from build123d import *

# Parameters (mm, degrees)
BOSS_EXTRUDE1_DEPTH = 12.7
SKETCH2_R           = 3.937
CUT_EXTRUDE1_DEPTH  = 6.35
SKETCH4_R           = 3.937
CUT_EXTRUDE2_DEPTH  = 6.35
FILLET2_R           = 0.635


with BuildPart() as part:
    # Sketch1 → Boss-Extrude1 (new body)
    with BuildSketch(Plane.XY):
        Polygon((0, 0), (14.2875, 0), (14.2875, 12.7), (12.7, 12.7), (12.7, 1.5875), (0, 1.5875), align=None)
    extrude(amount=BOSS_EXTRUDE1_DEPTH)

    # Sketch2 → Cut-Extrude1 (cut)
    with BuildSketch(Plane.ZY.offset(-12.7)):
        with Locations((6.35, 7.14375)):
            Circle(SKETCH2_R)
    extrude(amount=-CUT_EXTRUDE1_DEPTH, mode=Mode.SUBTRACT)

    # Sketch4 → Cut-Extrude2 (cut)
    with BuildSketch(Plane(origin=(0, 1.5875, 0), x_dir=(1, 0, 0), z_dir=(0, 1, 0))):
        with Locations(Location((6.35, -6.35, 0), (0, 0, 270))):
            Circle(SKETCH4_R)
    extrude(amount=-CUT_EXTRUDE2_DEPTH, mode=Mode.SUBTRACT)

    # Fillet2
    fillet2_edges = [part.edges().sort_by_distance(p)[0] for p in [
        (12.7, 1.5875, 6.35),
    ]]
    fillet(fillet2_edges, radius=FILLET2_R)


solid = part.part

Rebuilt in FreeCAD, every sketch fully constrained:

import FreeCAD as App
import Part
import Sketcher

V = App.Vector
Q = App.Units.Quantity


def edges_at(feature, points):
    """Names of the edges that pass closest to the given points."""
    edges = feature.Shape.Edges
    near = lambda p: min(range(len(edges)), key=lambda i: edges[i].distToShape(Part.Vertex(*p))[0])
    return sorted({f"Edge{near(p) + 1}" for p in points})

doc = App.newDocument("Part")
body = doc.addObject("PartDesign::Body", "Body")

# Sketch on XY plane
sketch1 = body.newObject("Sketcher::SketchObject", "Sketch")
sketch1.AttachmentSupport = (doc.getObject("XY_Plane"), [""])
sketch1.MapMode = "FlatFace"
sketch1.addGeometry([
    Part.LineSegment(V(0, 0, 0), V(14.3, 0, 0)),  # 0
    Part.LineSegment(V(14.3, 0, 0), V(14.3, 12.7, 0)),  # 1
    Part.LineSegment(V(14.3, 12.7, 0), V(12.7, 12.7, 0)),  # 2
    Part.LineSegment(V(12.7, 12.7, 0), V(12.7, 1.6, 0)),  # 3
    Part.LineSegment(V(12.7, 1.6, 0), V(0, 1.6, 0)),  # 4
    Part.LineSegment(V(0, 1.6, 0), V(0, 0, 0)),  # 5
], False)
sketch1.addConstraint([
    Sketcher.Constraint("Coincident", 0, 2, 1, 1),
    Sketcher.Constraint("Coincident", 1, 2, 2, 1),
    Sketcher.Constraint("Coincident", 2, 2, 3, 1),
    Sketcher.Constraint("Coincident", 3, 2, 4, 1),
    Sketcher.Constraint("Coincident", 4, 2, 5, 1),
    Sketcher.Constraint("Coincident", 5, 2, 0, 1),
    Sketcher.Constraint("Horizontal", 0),
    Sketcher.Constraint("Vertical", 1),
    Sketcher.Constraint("Horizontal", 2),
    Sketcher.Constraint("Vertical", 3),
    Sketcher.Constraint("Horizontal", 4),
    Sketcher.Constraint("Vertical", 5),
    Sketcher.Constraint("Coincident", 5, 2, -1, 1),
    Sketcher.Constraint("Equal", 4, 1),
    Sketcher.Constraint("Equal", 2, 5),
    Sketcher.Constraint("DistanceX", 4, 2, 4, 1, Q("0.5 in")),
    Sketcher.Constraint("DistanceX", 0, 1, 0, 2, Q("0.5625 in")),
])
pad1 = body.newObject("PartDesign::Pad", "Pad")
pad1.Profile = sketch1
pad1.Length = Q("0.5 in")

# Sketch on YZ plane
sketch2 = body.newObject("Sketcher::SketchObject", "Sketch001")
sketch2.AttachmentSupport = (doc.getObject("YZ_Plane"), [""])
sketch2.MapMode = "FlatFace"
sketch2.AttachmentOffset = App.Placement(V(0, 0, 0.5 * 25.4), App.Rotation())
sketch2.addGeometry(Part.Circle(V(7.1, 6.3, 0), V(0, 0, 1), 3.9), False)
sketch2.addConstraint([
    Sketcher.Constraint("Diameter", 0, Q("0.31 in")),
    Sketcher.Constraint("DistanceY", -1, 1, 0, 3, Q("0.25 in")),
    Sketcher.Constraint("DistanceX", -1, 1, 0, 3, Q("0.28125 in")),
])
pocket1 = body.newObject("PartDesign::Pocket", "Pocket")
pocket1.Profile = sketch2
pocket1.Length = Q("0.25 in")
pocket1.Reversed = True

# Sketch on XZ plane
sketch3 = body.newObject("Sketcher::SketchObject", "Sketch002")
sketch3.AttachmentSupport = (doc.getObject("XZ_Plane"), [""])
sketch3.MapMode = "FlatFace"
sketch3.AttachmentOffset = App.Placement(V(0, 0, -0.0625 * 25.4), App.Rotation())
sketch3.addGeometry(Part.Circle(V(6.3, 6.3, 0), V(0, 0, 1), 3.9), False)
sketch3.addConstraint([
    Sketcher.Constraint("Diameter", 0, Q("0.31 in")),
    Sketcher.Constraint("DistanceX", -1, 1, 0, 3, Q("0.25 in")),
    Sketcher.Constraint("DistanceY", -1, 1, 0, 3, Q("0.25 in")),
])
pocket2 = body.newObject("PartDesign::Pocket", "Pocket001")
pocket2.Profile = sketch3
pocket2.Length = Q("0.25 in")
pocket2.Reversed = True
doc.recompute()

fillet = body.newObject("PartDesign::Fillet", "Fillet")
fillet.Base = (pocket2, edges_at(pocket2, [(12.7, 1.587, 6.35)]))
fillet.Radius = Q("0.025 in")

doc.recompute()
